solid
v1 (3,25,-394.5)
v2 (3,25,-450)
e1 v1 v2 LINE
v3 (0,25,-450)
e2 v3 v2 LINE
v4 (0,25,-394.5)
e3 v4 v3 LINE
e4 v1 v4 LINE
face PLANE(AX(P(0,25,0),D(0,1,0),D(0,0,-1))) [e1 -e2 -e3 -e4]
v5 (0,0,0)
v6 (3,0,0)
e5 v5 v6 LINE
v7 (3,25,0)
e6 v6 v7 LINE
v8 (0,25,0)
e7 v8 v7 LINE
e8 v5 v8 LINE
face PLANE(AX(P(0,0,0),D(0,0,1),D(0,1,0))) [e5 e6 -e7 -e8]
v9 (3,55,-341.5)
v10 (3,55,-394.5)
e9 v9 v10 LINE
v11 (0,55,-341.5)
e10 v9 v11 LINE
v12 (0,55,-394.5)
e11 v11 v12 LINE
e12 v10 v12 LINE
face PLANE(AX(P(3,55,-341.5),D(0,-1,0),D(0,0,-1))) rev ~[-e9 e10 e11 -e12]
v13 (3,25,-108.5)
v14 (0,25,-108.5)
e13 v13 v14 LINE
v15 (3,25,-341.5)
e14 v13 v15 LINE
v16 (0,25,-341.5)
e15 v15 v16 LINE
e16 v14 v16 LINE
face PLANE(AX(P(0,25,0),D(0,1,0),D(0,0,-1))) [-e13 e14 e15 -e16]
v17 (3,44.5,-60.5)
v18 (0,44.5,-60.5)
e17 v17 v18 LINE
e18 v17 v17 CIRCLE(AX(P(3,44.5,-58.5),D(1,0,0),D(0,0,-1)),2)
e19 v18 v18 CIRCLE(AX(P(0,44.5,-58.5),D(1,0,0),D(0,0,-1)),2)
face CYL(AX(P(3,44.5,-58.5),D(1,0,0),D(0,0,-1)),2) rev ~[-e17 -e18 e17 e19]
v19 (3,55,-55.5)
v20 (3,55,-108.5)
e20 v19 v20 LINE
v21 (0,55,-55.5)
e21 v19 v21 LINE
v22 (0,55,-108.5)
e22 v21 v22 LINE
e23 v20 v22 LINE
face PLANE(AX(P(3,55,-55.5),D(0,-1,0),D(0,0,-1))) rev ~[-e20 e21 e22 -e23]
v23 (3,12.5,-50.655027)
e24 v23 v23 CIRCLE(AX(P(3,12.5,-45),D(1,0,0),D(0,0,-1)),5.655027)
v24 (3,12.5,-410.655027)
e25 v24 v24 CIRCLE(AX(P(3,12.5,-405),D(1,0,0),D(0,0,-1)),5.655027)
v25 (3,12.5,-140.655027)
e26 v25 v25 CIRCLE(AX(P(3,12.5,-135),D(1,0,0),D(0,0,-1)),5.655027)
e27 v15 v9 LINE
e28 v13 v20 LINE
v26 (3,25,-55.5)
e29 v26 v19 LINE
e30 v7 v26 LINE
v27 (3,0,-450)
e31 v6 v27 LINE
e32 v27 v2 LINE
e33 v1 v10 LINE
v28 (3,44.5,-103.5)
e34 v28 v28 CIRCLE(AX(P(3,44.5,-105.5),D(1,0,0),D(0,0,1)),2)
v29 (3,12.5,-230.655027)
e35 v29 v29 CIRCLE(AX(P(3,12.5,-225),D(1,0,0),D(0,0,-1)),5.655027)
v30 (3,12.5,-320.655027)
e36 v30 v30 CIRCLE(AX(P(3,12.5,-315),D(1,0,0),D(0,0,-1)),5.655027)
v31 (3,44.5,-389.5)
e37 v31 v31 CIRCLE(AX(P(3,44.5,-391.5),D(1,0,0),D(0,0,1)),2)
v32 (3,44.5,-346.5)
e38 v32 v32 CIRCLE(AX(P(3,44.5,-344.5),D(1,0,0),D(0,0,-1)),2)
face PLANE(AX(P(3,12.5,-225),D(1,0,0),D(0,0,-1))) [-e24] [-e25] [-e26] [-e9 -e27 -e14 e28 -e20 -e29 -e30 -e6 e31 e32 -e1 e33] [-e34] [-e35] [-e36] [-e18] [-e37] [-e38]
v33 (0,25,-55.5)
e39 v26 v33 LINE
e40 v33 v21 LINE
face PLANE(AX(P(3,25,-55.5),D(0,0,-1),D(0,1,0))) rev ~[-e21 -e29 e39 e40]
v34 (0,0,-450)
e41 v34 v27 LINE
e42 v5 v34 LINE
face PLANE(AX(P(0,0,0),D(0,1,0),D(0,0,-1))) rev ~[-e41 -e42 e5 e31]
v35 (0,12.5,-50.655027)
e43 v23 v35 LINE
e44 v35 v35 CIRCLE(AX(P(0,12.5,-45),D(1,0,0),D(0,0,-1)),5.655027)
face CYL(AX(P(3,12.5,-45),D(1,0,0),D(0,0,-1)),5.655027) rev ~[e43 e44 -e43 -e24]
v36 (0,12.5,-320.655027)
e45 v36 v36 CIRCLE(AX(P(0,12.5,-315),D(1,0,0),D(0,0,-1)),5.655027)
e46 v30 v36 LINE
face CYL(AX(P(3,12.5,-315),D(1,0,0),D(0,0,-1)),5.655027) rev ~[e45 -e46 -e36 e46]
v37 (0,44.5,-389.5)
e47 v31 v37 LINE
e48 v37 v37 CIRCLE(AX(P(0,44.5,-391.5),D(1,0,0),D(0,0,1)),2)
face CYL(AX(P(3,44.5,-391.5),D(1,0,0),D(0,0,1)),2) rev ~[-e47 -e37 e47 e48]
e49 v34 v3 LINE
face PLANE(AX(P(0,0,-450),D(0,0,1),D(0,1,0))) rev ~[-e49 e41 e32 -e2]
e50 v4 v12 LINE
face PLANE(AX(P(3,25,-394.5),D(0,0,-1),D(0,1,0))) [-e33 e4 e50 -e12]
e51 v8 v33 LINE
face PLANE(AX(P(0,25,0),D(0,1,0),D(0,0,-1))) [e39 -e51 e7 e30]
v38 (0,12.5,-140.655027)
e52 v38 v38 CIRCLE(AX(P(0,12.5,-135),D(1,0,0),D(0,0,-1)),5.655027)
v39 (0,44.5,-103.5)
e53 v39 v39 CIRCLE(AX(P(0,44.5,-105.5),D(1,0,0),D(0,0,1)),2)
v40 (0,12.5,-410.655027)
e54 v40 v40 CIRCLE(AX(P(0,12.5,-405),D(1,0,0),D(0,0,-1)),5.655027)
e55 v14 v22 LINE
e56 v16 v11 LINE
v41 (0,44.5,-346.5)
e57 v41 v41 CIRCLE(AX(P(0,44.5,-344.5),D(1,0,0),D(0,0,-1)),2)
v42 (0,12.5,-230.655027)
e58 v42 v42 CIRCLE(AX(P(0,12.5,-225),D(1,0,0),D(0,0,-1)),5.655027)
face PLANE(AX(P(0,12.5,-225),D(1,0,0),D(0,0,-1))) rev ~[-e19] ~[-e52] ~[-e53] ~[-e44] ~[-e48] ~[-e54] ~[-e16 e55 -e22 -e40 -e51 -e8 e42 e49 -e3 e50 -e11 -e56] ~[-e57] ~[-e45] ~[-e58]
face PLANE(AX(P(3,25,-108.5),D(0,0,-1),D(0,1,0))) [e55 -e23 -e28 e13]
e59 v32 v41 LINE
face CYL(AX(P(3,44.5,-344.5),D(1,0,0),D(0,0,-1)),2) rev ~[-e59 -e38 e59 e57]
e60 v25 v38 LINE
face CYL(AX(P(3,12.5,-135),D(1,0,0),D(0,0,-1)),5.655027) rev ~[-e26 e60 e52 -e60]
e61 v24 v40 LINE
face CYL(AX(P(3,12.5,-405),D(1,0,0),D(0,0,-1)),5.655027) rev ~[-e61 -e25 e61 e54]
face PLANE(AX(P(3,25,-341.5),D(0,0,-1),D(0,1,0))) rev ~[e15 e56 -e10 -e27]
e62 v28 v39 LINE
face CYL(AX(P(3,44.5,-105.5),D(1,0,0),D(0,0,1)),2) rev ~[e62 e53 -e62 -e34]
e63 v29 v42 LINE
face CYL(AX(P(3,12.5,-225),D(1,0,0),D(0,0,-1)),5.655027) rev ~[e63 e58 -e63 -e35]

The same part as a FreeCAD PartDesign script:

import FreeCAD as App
import Part
import Sketcher

V = App.Vector


def add_polygon(sketch, points):
    """Adds a closed chain of lines whose ends are joined by coincident constraints."""
    first, n = sketch.GeometryCount, len(points)
    for a, b in zip(points, points[1:] + points[:1]):
        sketch.addGeometry(Part.LineSegment(App.Vector(*a, 0), App.Vector(*b, 0)), False)
    for i in range(n):
        sketch.addConstraint(Sketcher.Constraint("Coincident", first + i, 2, first + (i + 1) % n, 1))

doc = App.newDocument("Part")
body = doc.addObject("PartDesign::Body", "Body")

sketch1 = doc.addObject("Sketcher::SketchObject", "Sketch")
body.addObject(sketch1)
sketch1.AttachmentSupport = (doc.YZ_Plane, [""])
sketch1.MapMode = "FlatFace"
add_polygon(sketch1, [(25, 0), (0, 0), (0, -450), (25, -450)])
sketch1.addConstraint([
    Sketcher.Constraint("Horizontal", 0),
    Sketcher.Constraint("Vertical", 1),
    Sketcher.Constraint("Horizontal", 2),
    Sketcher.Constraint("Vertical", 3),
    Sketcher.Constraint("Coincident", 0, 2, -1, 1),
    Sketcher.Constraint("DistanceX", 0, 2, 0, 1, 25.0),
    Sketcher.Constraint("DistanceY", 1, 2, 1, 1, 450.0),
])
pad1 = doc.addObject("PartDesign::Pad", "Pad")
body.addObject(pad1)
pad1.Profile = sketch1
pad1.Length = 3

sketch2 = doc.addObject("Sketcher::SketchObject", "Sketch001")
body.addObject(sketch2)
sketch2.AttachmentSupport = (doc.YZ_Plane, [""])
sketch2.MapMode = "FlatFace"
sketch2.AttachmentOffset = App.Placement(V(0, 0, 3), App.Rotation())
add_polygon(sketch2, [(55, -55.5), (25, -55.5), (25, -108.5), (55, -108.5)])
sketch2.addGeometry(Part.Circle(V(44.5, -58.5, 0), V(0, 0, 1), 2), False)
sketch2.addGeometry(Part.Circle(V(44.5, -105.5, 0), V(0, 0, 1), 2), False)
add_polygon(sketch2, [(55, -341.5), (25, -341.5), (25, -394.5), (55, -394.5)])
sketch2.addGeometry(Part.Circle(V(44.5, -344.5, 0), V(0, 0, 1), 2), False)
sketch2.addGeometry(Part.Circle(V(44.5, -391.5, 0), V(0, 0, 1), 2), False)
sketch2.addConstraint([
    Sketcher.Constraint("Horizontal", 0),
    Sketcher.Constraint("Vertical", 1),
    Sketcher.Constraint("Horizontal", 2),
    Sketcher.Constraint("Vertical", 3),
    Sketcher.Constraint("Horizontal", 6),
    Sketcher.Constraint("Vertical", 7),
    Sketcher.Constraint("Horizontal", 8),
    Sketcher.Constraint("Vertical", 9),
    Sketcher.Constraint("Equal", 4, 5),
    Sketcher.Constraint("Equal", 5, 10),
    Sketcher.Constraint("Equal", 10, 11),
    Sketcher.Constraint("Vertical", 4, 3, 5, 3),
    Sketcher.Constraint("Vertical", 5, 3, 10, 3),
    Sketcher.Constraint("Vertical", 10, 3, 11, 3),
    Sketcher.Constraint("Vertical", 1, 2, 6, 2),
    Sketcher.Constraint("Vertical", 3, 2, 8, 2),
    Sketcher.Constraint("Equal", 3, 7),
    Sketcher.Constraint("Diameter", 4, 4.0),
    Sketcher.Constraint("DistanceX", 0, 2, 0, 1, 30.0),
    Sketcher.Constraint("DistanceY", 1, 2, 1, 1, 53.0),
    Sketcher.Constraint("DistanceX", -1, 1, 0, 2, 25.0),
    Sketcher.Constraint("DistanceY", 5, 3, 4, 3, 47.0),
    Sketcher.Constraint("DistanceY", 10, 3, 5, 3, 239.0),
    Sketcher.Constraint("DistanceY", 11, 3, 10, 3, 47.0),
    Sketcher.Constraint("DistanceY", 4, 3, 0, 2, 3.0),
    Sketcher.Constraint("DistanceY", 10, 3, 6, 2, 3.0),
    Sketcher.Constraint("DistanceX", -1, 1, 4, 3, 44.5),
    Sketcher.Constraint("DistanceY", 4, 3, -1, 1, 58.5),
])
pad2 = doc.addObject("PartDesign::Pad", "Pad001")
body.addObject(pad2)
pad2.Profile = sketch2
pad2.Length = 3
pad2.Reversed = True

sketch3 = doc.addObject("Sketcher::SketchObject", "Sketch002")
body.addObject(sketch3)
sketch3.AttachmentSupport = (doc.YZ_Plane, [""])
sketch3.MapMode = "FlatFace"
sketch3.AttachmentOffset = App.Placement(V(0, 0, 3), App.Rotation())
sketch3.addGeometry([
    Part.Circle(V(12, -225, 0), V(0, 0, 1), 6),
    Part.Circle(V(12, -315, 0), V(0, 0, 1), 6),
    Part.Circle(V(12, -405, 0), V(0, 0, 1), 6),
    Part.Circle(V(12, -135, 0), V(0, 0, 1), 6),
    Part.Circle(V(12, -45, 0), V(0, 0, 1), 6),
], False)
sketch3.addConstraint([
    Sketcher.Constraint("Equal", 0, 1),
    Sketcher.Constraint("Equal", 1, 2),
    Sketcher.Constraint("Equal", 2, 3),
    Sketcher.Constraint("Equal", 3, 4),
    Sketcher.Constraint("Vertical", 0, 3, 1, 3),
    Sketcher.Constraint("Vertical", 1, 3, 2, 3),
    Sketcher.Constraint("Vertical", 2, 3, 3, 3),
    Sketcher.Constraint("Vertical", 3, 3, 4, 3),
    Sketcher.Constraint("DistanceY", 0, 3, -1, 1, 225.0),
    Sketcher.Constraint("DistanceY", 1, 3, -1, 1, 315.0),
    Sketcher.Constraint("DistanceY", 2, 3, -1, 1, 405.0),
    Sketcher.Constraint("DistanceY", 3, 3, -1, 1, 135.0),
    Sketcher.Constraint("DistanceY", 4, 3, -1, 1, 45.0),
    Sketcher.Constraint("DistanceX", -1, 1, 0, 3, 12.5),
    Sketcher.Constraint("Diameter", 0, 11.310055),
])
pocket1 = doc.addObject("PartDesign::Pocket", "Pocket")
body.addObject(pocket1)
pocket1.Profile = sketch3
pocket1.Type = "ThroughAll"

doc.recompute()
